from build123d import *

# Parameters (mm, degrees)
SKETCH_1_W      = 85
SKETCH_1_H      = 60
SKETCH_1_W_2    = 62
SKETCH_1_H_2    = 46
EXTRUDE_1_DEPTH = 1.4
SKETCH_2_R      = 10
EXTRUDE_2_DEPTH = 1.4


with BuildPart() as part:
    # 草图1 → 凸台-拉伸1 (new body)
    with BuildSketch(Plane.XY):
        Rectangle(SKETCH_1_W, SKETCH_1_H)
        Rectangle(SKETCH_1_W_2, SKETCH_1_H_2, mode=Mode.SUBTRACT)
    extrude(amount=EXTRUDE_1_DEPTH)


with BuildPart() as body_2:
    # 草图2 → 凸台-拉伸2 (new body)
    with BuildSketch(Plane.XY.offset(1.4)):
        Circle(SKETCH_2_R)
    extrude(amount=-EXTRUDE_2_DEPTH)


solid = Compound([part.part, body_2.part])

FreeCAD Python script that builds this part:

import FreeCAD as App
import Part
import Sketcher
Q = App.Units.Quantity

doc = App.newDocument("Part")
params = doc.addObject("Spreadsheet::Sheet", "Params")
for row, (alias, value) in enumerate([
    ("sketch1_width", "85 mm"),
    ("sketch1_width2", "62 mm"),
    ("sketch1_height", "60 mm"),
    ("sketch1_height2", "46 mm"),
    ("pad1_length", "1.4 mm"),
    ("sketch2_diameter", "20 mm"),
    ("pad2_length", "1.4 mm"),
], start=1):
    params.set(f"A{row}", alias)
    params.set(f"B{row}", "=" + value)
    params.setAlias(f"B{row}", alias)

body = doc.addObject("PartDesign::Body", "Body")

sketch1 = doc.addObject("Sketcher::SketchObject", "Sketch")
body.addObject(sketch1)
sketch1.AttachmentSupport = (doc.XY_Plane, [""])
sketch1.MapMode = "FlatFace"
sketch1.addGeometry([
    Part.LineSegment(App.Vector(-42, 30, 0), App.Vector(-42, -30, 0)),
    Part.LineSegment(App.Vector(-42, -30, 0), App.Vector(42, -30, 0)),
    Part.LineSegment(App.Vector(42, -30, 0), App.Vector(42, 30, 0)),
    Part.LineSegment(App.Vector(42, 30, 0), App.Vector(-42, 30, 0)),
    Part.LineSegment(App.Vector(31, -23, 0), App.Vector(-31, -23, 0)),
    Part.LineSegment(App.Vector(-31, -23, 0), App.Vector(-31, 23, 0)),
    Part.LineSegment(App.Vector(-31, 23, 0), App.Vector(31, 23, 0)),
    Part.LineSegment(App.Vector(31, 23, 0), App.Vector(31, -23, 0)),
], False)
sketch1.addConstraint([
    Sketcher.Constraint("Coincident", 0, 2, 1, 1),
    Sketcher.Constraint("Coincident", 1, 2, 2, 1),
    Sketcher.Constraint("Coincident", 2, 2, 3, 1),
    Sketcher.Constraint("Coincident", 3, 2, 0, 1),
    Sketcher.Constraint("Coincident", 4, 2, 5, 1),
    Sketcher.Constraint("Coincident", 5, 2, 6, 1),
    Sketcher.Constraint("Coincident", 6, 2, 7, 1),
    Sketcher.Constraint("Coincident", 7, 2, 4, 1),
    Sketcher.Constraint("Vertical", 0),
    Sketcher.Constraint("Horizontal", 1),
    Sketcher.Constraint("Vertical", 2),
    Sketcher.Constraint("Horizontal", 3),
    Sketcher.Constraint("Horizontal", 4),
    Sketcher.Constraint("Vertical", 5),
    Sketcher.Constraint("Horizontal", 6),
    Sketcher.Constraint("Vertical", 7),
    Sketcher.Constraint("Symmetric", 0, 2, 2, 2, -1, 1),
    Sketcher.Constraint("Symmetric", 4, 2, 6, 2, -1, 1),
    Sketcher.Constraint("DistanceX", 1, 1, 1, 2, Q("85 mm")),
    Sketcher.Constraint("DistanceX", 4, 2, 4, 1, Q("62 mm")),
    Sketcher.Constraint("DistanceY", 0, 2, 0, 1, Q("60 mm")),
    Sketcher.Constraint("DistanceY", 5, 1, 5, 2, Q("46 mm")),
])
sketch1.setExpression("Constraints[18]", "Params.sketch1_width")
sketch1.setExpression("Constraints[19]", "Params.sketch1_width2")
sketch1.setExpression("Constraints[20]", "Params.sketch1_height")
sketch1.setExpression("Constraints[21]", "Params.sketch1_height2")
pad1 = doc.addObject("PartDesign::Pad", "Pad")
body.addObject(pad1)
pad1.Profile = sketch1
pad1.setExpression("Length", "Params.pad1_length")
body2 = doc.addObject("PartDesign::Body", "Body001")

sketch2 = doc.addObject("Sketcher::SketchObject", "Sketch001")
body2.addObject(sketch2)
sketch2.AttachmentSupport = (doc.getObject("XY_Plane001"), [""])
sketch2.MapMode = "FlatFace"
sketch2.AttachmentOffset = App.Placement(App.Vector(0, 0, 1.4), App.Rotation())
sketch2.addGeometry(Part.Circle(App.Vector(0, 0, 0), App.Vector(0, 0, 1), 10), False)
sketch2.addConstraint([
    Sketcher.Constraint("Coincident", 0, 3, -1, 1),
    Sketcher.Constraint("Diameter", 0, Q("20 mm")),
])
sketch2.setExpression("Constraints[1]", "Params.sketch2_diameter")
pad2 = doc.addObject("PartDesign::Pad", "Pad001")
body2.addObject(pad2)
pad2.Profile = sketch2
pad2.setExpression("Length", "Params.pad2_length")
pad2.Reversed = True

doc.recompute()
